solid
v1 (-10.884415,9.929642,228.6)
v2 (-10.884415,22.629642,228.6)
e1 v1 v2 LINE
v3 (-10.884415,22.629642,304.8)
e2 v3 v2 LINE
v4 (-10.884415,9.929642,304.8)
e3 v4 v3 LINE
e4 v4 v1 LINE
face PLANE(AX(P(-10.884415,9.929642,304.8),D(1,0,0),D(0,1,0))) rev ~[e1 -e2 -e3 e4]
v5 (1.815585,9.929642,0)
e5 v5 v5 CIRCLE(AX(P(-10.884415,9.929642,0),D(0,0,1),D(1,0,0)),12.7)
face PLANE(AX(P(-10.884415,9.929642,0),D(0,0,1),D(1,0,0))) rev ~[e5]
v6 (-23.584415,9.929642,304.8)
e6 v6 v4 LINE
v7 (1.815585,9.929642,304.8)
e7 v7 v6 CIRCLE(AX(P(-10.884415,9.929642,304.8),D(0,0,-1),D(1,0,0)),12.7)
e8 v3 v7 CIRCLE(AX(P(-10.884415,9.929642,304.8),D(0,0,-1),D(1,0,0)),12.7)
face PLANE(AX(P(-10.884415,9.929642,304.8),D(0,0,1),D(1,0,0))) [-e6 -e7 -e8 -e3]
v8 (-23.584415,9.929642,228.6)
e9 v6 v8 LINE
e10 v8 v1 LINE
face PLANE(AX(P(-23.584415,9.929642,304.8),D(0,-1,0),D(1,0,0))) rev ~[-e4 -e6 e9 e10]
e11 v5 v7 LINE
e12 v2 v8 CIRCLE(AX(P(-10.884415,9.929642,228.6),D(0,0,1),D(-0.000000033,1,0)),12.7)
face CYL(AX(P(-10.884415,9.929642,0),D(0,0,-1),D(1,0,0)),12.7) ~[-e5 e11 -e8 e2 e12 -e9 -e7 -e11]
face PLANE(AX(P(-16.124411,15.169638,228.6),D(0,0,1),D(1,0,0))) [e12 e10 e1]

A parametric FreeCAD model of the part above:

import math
import FreeCAD as App
import Part
import Sketcher

V = App.Vector
Q = App.Units.Quantity

doc = App.newDocument("Part")
body = doc.addObject("PartDesign::Body", "Body")

# Sketch on XY plane
sketch1 = body.newObject("Sketcher::SketchObject", "Sketch")
sketch1.AttachmentSupport = (doc.getObject("XY_Plane"), [""])
sketch1.MapMode = "FlatFace"
sketch1.addGeometry(Part.Circle(V(-11, 10, 0), V(0, 0, 1), 13), False)
sketch1.addConstraint([
    Sketcher.Constraint("Diameter", 0, Q("1 in")),
    Sketcher.Constraint("DistanceX", 0, 3, -1, 1, Q("10.884415 mm")),
    Sketcher.Constraint("DistanceY", -1, 1, 0, 3, Q("9.929642 mm")),
])
pad1 = body.newObject("PartDesign::Pad", "Pad")
pad1.Profile = sketch1
pad1.Length = Q("12 in")

# Sketch on XY plane
sketch2 = body.newObject("Sketcher::SketchObject", "Sketch001")
sketch2.AttachmentSupport = (doc.getObject("XY_Plane"), [""])
sketch2.MapMode = "FlatFace"
sketch2.AttachmentOffset = App.Placement(V(0, 0, 12 * 25.4), App.Rotation())
sketch2.addGeometry([
    Part.ArcOfCircle(Part.Circle(V(-10.9, 9.9, 0), V(0, 0, 1), 12.7), math.radians(0), math.radians(14.48)),  # 0
    Part.LineSegment(V(1.4, 13.1, 0), V(-4.9, 13.1, 0)),  # 1
    Part.LineSegment(V(-4.9, 13.1, 0), V(-4.9, 6.8, 0)),  # 2
    Part.LineSegment(V(-4.9, 6.8, 0), V(1.4, 6.8, 0)),  # 3
    Part.ArcOfCircle(Part.Circle(V(-10.9, 9.9, 0), V(0, 0, 1), 12.7), math.radians(-14.48), math.radians(0)),  # 4
], False)
sketch2.addConstraint([
    Sketcher.Constraint("Coincident", 0, 2, 1, 1),
    Sketcher.Constraint("Coincident", 1, 2, 2, 1),
    Sketcher.Constraint("Coincident", 2, 2, 3, 1),
    Sketcher.Constraint("Coincident", 3, 2, 4, 1),
    Sketcher.Constraint("Tangent", 4, 2, 0, 1),
    Sketcher.Constraint("Horizontal", 1),
    Sketcher.Constraint("Vertical", 2),
    Sketcher.Constraint("Horizontal", 3),
    Sketcher.Constraint("Horizontal", 0, 3, 4, 2),
    Sketcher.Constraint("Vertical", 0, 2, 3, 2),
    Sketcher.Constraint("Equal", 3, 2),
    Sketcher.Constraint("Radius", 0, Q("0.5000001 in")),
    Sketcher.Constraint("DistanceX", 1, 2, 1, 1, Q("0.25 in")),
    Sketcher.Constraint("Radius", 4, Q("12.700018 mm")),
    Sketcher.Constraint("DistanceY", -1, 1, 0, 3, Q("9.929641 mm")),
    Sketcher.Constraint("DistanceX", 0, 3, -1, 1, Q("10.884417 mm")),
])
pocket1 = body.newObject("PartDesign::Pocket", "Pocket")
pocket1.Profile = sketch2
pocket1.Length = Q("3 in")
pocket1.Reversed = True

# Sketch on XY plane
sketch3 = body.newObject("Sketcher::SketchObject", "Sketch002")
sketch3.AttachmentSupport = (doc.getObject("XY_Plane"), [""])
sketch3.MapMode = "FlatFace"
sketch3.AttachmentOffset = App.Placement(V(0, 0, 12 * 25.4), App.Rotation())
sketch3.addGeometry([
    Part.LineSegment(V(-24, 10, 0), V(-11, 10, 0)),
    Part.LineSegment(V(-11, 10, 0), V(-11, 23, 0)),
    Part.ArcOfCircle(Part.Circle(V(-11, 10, 0), V(0, 0, 1), 13), math.radians(90), math.radians(180)),
], False)
sketch3.addConstraint([
    Sketcher.Constraint("Coincident", 0, 2, 1, 1),
    Sketcher.Constraint("Coincident", 1, 2, 2, 1),
    Sketcher.Constraint("Coincident", 2, 2, 0, 1),
    Sketcher.Constraint("Horizontal", 0),
    Sketcher.Constraint("Vertical", 1),
    Sketcher.Constraint("Coincident", 0, 2, 2, 3),
    Sketcher.Constraint("Radius", 2, Q("0.5 in")),
    Sketcher.Constraint("DistanceY", -1, 1, 2, 3, Q("9.929642 mm")),
    Sketcher.Constraint("DistanceX", 2, 3, -1, 1, Q("10.884415 mm")),
])
pocket2 = body.newObject("PartDesign::Pocket", "Pocket001")
pocket2.Profile = sketch3
pocket2.Length = Q("3 in")

doc.recompute()
